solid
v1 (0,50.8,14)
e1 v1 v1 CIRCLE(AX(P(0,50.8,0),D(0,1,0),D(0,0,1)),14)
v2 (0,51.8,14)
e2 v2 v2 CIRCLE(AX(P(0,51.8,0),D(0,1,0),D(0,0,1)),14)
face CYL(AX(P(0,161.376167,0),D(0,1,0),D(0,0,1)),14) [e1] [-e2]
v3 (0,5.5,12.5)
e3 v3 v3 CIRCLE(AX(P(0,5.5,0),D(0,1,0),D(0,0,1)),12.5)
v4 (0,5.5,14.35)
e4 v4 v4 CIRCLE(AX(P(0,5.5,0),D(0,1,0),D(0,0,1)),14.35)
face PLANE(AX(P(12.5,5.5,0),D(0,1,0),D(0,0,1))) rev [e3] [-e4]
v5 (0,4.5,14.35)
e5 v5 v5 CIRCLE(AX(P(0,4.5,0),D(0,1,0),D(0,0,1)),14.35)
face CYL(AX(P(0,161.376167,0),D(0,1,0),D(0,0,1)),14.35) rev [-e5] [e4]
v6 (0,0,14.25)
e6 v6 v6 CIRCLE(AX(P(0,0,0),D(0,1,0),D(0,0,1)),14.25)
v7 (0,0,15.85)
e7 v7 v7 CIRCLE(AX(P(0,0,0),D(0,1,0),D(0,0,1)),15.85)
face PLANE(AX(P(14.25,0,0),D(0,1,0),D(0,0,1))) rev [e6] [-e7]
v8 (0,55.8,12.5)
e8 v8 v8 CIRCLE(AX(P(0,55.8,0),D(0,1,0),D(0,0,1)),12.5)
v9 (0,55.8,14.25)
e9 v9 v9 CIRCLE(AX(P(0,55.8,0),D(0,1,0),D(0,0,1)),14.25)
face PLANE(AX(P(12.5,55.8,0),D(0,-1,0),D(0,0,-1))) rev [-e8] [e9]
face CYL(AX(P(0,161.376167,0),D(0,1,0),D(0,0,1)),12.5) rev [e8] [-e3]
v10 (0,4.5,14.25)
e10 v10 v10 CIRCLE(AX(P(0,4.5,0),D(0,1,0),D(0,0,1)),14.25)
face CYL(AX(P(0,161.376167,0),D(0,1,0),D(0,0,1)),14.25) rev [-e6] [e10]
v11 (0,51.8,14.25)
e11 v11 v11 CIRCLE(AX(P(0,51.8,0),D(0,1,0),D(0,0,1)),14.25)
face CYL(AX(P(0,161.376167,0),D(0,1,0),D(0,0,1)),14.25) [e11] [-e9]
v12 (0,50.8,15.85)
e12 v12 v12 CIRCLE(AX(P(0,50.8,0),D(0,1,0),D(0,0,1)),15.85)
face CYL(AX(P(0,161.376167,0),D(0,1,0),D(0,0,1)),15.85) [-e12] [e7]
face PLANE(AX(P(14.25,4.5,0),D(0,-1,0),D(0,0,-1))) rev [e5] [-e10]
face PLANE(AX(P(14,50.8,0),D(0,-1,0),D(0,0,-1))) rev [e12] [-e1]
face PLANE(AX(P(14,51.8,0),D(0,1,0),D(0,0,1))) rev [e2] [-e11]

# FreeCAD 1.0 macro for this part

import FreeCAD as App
import Part
import Sketcher
from FreeCAD import Vector
Q = App.Units.Quantity


def add_polygon(sketch, points):
    """Adds a closed chain of lines whose ends are joined by coincident constraints."""
    first, n = sketch.GeometryCount, len(points)
    for a, b in zip(points, points[1:] + points[:1]):
        sketch.addGeometry(Part.LineSegment(App.Vector(*a, 0), App.Vector(*b, 0)), False)
    for i in range(n):
        sketch.addConstraint(Sketcher.Constraint("Coincident", first + i, 2, first + (i + 1) % n, 1))

doc = App.newDocument("Part")
body = doc.addObject("PartDesign::Body", "Body")

sketch1 = body.newObject("Sketcher::SketchObject", "Sketch")
sketch1.AttachmentSupport = (doc.getObject("XY_Plane"), [""])
sketch1.MapMode = "FlatFace"
add_polygon(sketch1, [(14.25, 4.5), (14.25, 0), (15.85, 0), (15.85, 50.8), (14, 50.8), (14, 51.8), (14.25, 51.8), (14.25, 55.8), (12.5, 55.8), (12.5, 5.5), (14.35, 5.5), (14.35, 4.5)])
sketch1.addConstraint([
    Sketcher.Constraint("Vertical", 0),
    Sketcher.Constraint("Horizontal", 1),
    Sketcher.Constraint("Vertical", 2),
    Sketcher.Constraint("Horizontal", 3),
    Sketcher.Constraint("Vertical", 4),
    Sketcher.Constraint("Horizontal", 5),
    Sketcher.Constraint("Vertical", 6),
    Sketcher.Constraint("Horizontal", 7),
    Sketcher.Constraint("Vertical", 8),
    Sketcher.Constraint("Horizontal", 9),
    Sketcher.Constraint("Vertical", 10),
    Sketcher.Constraint("Horizontal", 11),
    Sketcher.Constraint("PointOnObject", 0, 2, -1),
    Sketcher.Constraint("Vertical", 0, 2, 5, 2),
    Sketcher.Constraint("Equal", 3, 9),
    Sketcher.Constraint("Equal", 4, 10),
    Sketcher.Constraint("DistanceY", 4, 1, 4, 2, Q("1 mm")),
    Sketcher.Constraint("DistanceY", 6, 1, 6, 2, Q("4 mm")),
    Sketcher.Constraint("DistanceX", 1, 1, 1, 2, Q("1.6 mm")),
    Sketcher.Constraint("DistanceX", 11, 2, 11, 1, Q("0.1 mm")),
    Sketcher.Constraint("DistanceY", 0, 2, 0, 1, Q("4.5 mm")),
    Sketcher.Constraint("DistanceY", 2, 1, 2, 2, Q("50.8 mm")),
    Sketcher.Constraint("DistanceX", -1, 1, 3, 2, Q("14 mm")),
    Sketcher.Constraint("DistanceX", 3, 2, 3, 1, Q("1.85 mm")),
])
revolution = body.newObject("PartDesign::Revolution", "Revolution")
revolution.Profile = sketch1
revolution.ReferenceAxis = (sketch1, ["V_Axis"])
revolution.Angle = 360

doc.recompute()
